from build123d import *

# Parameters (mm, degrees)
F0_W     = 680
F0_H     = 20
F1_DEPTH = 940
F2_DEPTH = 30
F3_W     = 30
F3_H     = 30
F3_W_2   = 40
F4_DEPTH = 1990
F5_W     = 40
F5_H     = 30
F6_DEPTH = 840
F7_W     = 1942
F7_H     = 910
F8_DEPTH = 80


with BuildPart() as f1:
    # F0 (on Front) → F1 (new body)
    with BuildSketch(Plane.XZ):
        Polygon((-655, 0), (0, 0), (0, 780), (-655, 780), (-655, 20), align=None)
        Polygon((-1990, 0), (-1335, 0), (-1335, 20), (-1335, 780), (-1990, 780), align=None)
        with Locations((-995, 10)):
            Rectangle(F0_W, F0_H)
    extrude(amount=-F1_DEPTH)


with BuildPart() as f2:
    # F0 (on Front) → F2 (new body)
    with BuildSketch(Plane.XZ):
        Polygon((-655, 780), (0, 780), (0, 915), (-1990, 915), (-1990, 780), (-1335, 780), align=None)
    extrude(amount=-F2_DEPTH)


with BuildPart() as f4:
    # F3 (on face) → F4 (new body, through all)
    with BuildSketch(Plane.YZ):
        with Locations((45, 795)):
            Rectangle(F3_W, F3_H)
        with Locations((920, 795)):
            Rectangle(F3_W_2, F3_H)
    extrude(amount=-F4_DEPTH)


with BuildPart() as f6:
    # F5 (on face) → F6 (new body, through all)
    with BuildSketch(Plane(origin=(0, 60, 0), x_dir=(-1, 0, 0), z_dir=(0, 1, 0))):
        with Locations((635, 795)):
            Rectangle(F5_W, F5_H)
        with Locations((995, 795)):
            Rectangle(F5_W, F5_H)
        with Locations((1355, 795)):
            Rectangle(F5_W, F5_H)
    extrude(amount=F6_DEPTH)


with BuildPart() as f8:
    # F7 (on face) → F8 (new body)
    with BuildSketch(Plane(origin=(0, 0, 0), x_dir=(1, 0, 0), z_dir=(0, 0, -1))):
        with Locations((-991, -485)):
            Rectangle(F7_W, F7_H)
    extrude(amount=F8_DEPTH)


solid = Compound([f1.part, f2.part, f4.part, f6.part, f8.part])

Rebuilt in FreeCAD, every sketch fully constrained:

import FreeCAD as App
import Part
import Sketcher
Q = App.Units.Quantity


def add_polygon(sketch, points):
    """Adds a closed chain of lines whose ends are joined by coincident constraints."""
    first, n = sketch.GeometryCount, len(points)
    for a, b in zip(points, points[1:] + points[:1]):
        sketch.addGeometry(Part.LineSegment(App.Vector(*a, 0), App.Vector(*b, 0)), False)
    for i in range(n):
        sketch.addConstraint(Sketcher.Constraint("Coincident", first + i, 2, first + (i + 1) % n, 1))

doc = App.newDocument("Part")
body = doc.addObject("PartDesign::Body", "Body")

sketch1 = body.newObject("Sketcher::SketchObject", "Sketch")
sketch1.AttachmentSupport = (doc.getObject("XZ_Plane"), [""])
sketch1.MapMode = "FlatFace"
add_polygon(sketch1, [(0, 0), (0, 780), (-655, 780), (-655, 20), (-1335, 20), (-1335, 780), (-1990, 780), (-1990, 0)])
sketch1.addConstraint(Sketcher.Constraint("Vertical", 0))
sketch1.addConstraint(Sketcher.Constraint("Horizontal", 1))
sketch1.addConstraint(Sketcher.Constraint("Vertical", 2))
sketch1.addConstraint(Sketcher.Constraint("Horizontal", 3))
sketch1.addConstraint(Sketcher.Constraint("Vertical", 4))
sketch1.addConstraint(Sketcher.Constraint("Horizontal", 5))
sketch1.addConstraint(Sketcher.Constraint("Vertical", 6))
sketch1.addConstraint(Sketcher.Constraint("Horizontal", 7))
sketch1.addConstraint(Sketcher.Constraint("Coincident", 7, 2, -1, 1))
sketch1.addConstraint(Sketcher.Constraint("Horizontal", 1, 2, 4, 2))
sketch1.addConstraint(Sketcher.Constraint("Equal", 1, 5))
sketch1.addConstraint(Sketcher.Constraint("DistanceX", 1, 2, 1, 1, Q("655 mm")))
sketch1.addConstraint(Sketcher.Constraint("DistanceX", 3, 2, 3, 1, Q("680 mm")))
sketch1.addConstraint(Sketcher.Constraint("DistanceY", 0, 1, 0, 2, Q("780 mm")))
sketch1.addConstraint(Sketcher.Constraint("DistanceY", 2, 2, 2, 1, Q("760 mm")))
pad1 = body.newObject("PartDesign::Pad", "Pad")
pad1.Profile = sketch1
pad1.Length = 940
pad1.Reversed = True
body2 = doc.addObject("PartDesign::Body", "Body001")

sketch2 = body2.newObject("Sketcher::SketchObject", "Sketch001")
sketch2.AttachmentSupport = (doc.getObject("XZ_Plane001"), [""])
sketch2.MapMode = "FlatFace"
add_polygon(sketch2, [(0, 780), (0, 915), (-1990, 915), (-1990, 780)])
sketch2.addConstraint(Sketcher.Constraint("Vertical", 0))
sketch2.addConstraint(Sketcher.Constraint("Horizontal", 1))
sketch2.addConstraint(Sketcher.Constraint("Vertical", 2))
sketch2.addConstraint(Sketcher.Constraint("Horizontal", 3))
sketch2.addConstraint(Sketcher.Constraint("PointOnObject", 0, 2, -2))
sketch2.addConstraint(Sketcher.Constraint("DistanceX", 1, 2, 1, 1, Q("1990 mm")))
sketch2.addConstraint(Sketcher.Constraint("DistanceY", 0, 1, 0, 2, Q("135 mm")))
sketch2.addConstraint(Sketcher.Constraint("DistanceY", -1, 1, 0, 2, Q("915 mm")))
pad2 = body2.newObject("PartDesign::Pad", "Pad001")
pad2.Profile = sketch2
pad2.Length = 30
pad2.Reversed = True
body3 = doc.addObject("PartDesign::Body", "Body002")
body3.AllowCompound = True

sketch3 = body3.newObject("Sketcher::SketchObject", "Sketch002")
sketch3.AttachmentSupport = (doc.getObject("YZ_Plane002"), [""])
sketch3.MapMode = "FlatFace"
add_polygon(sketch3, [(30, 810), (30, 780), (60, 780), (60, 810)])
add_polygon(sketch3, [(900, 810), (900, 780), (940, 780), (940, 810)])
sketch3.addConstraint(Sketcher.Constraint("Vertical", 0))
sketch3.addConstraint(Sketcher.Constraint("Horizontal", 1))
sketch3.addConstraint(Sketcher.Constraint("Vertical", 2))
sketch3.addConstraint(Sketcher.Constraint("Horizontal", 3))
sketch3.addConstraint(Sketcher.Constraint("Vertical", 4))
sketch3.addConstraint(Sketcher.Constraint("Horizontal", 5))
sketch3.addConstraint(Sketcher.Constraint("Vertical", 6))
sketch3.addConstraint(Sketcher.Constraint("Horizontal", 7))
sketch3.addConstraint(Sketcher.Constraint("Horizontal", 1, 2, 4, 2))
sketch3.addConstraint(Sketcher.Constraint("Horizontal", 3, 2, 6, 2))
sketch3.addConstraint(Sketcher.Constraint("Equal", 3, 0))
sketch3.addConstraint(Sketcher.Constraint("DistanceX", 1, 1, 1, 2, Q("30 mm")))
sketch3.addConstraint(Sketcher.Constraint("DistanceX", 5, 1, 5, 2, Q("40 mm")))
sketch3.addConstraint(Sketcher.Constraint("DistanceX", -1, 1, 0, 2, Q("30 mm")))
sketch3.addConstraint(Sketcher.Constraint("DistanceY", -1, 1, 0, 2, Q("780 mm")))
sketch3.addConstraint(Sketcher.Constraint("DistanceX", -1, 1, 4, 2, Q("900 mm")))
pad3 = body3.newObject("PartDesign::Pad", "Pad002")
pad3.Profile = sketch3
pad3.Length = 1990
pad3.Reversed = True
body4 = doc.addObject("PartDesign::Body", "Body003")
body4.AllowCompound = True

sketch4 = body4.newObject("Sketcher::SketchObject", "Sketch003")
sketch4.AttachmentSupport = (doc.getObject("XZ_Plane003"), [""])
sketch4.MapMode = "FlatFace"
sketch4.AttachmentOffset = App.Placement(App.Vector(0, 0, -60), App.Rotation())
add_polygon(sketch4, [(-615, 810), (-615, 780), (-655, 780), (-655, 810)])
add_polygon(sketch4, [(-975, 810), (-975, 780), (-1015, 780), (-1015, 810)])
add_polygon(sketch4, [(-1335, 810), (-1335, 780), (-1375, 780), (-1375, 810)])
sketch4.addConstraint(Sketcher.Constraint("Vertical", 0))
sketch4.addConstraint(Sketcher.Constraint("Horizontal", 1))
sketch4.addConstraint(Sketcher.Constraint("Vertical", 2))
sketch4.addConstraint(Sketcher.Constraint("Horizontal", 3))
sketch4.addConstraint(Sketcher.Constraint("Vertical", 4))
sketch4.addConstraint(Sketcher.Constraint("Horizontal", 5))
sketch4.addConstraint(Sketcher.Constraint("Vertical", 6))
sketch4.addConstraint(Sketcher.Constraint("Horizontal", 7))
sketch4.addConstraint(Sketcher.Constraint("Vertical", 8))
sketch4.addConstraint(Sketcher.Constraint("Horizontal", 9))
sketch4.addConstraint(Sketcher.Constraint("Vertical", 10))
sketch4.addConstraint(Sketcher.Constraint("Horizontal", 11))
sketch4.addConstraint(Sketcher.Constraint("Horizontal", 1, 2, 4, 2))
sketch4.addConstraint(Sketcher.Constraint("Horizontal", 3, 2, 6, 2))
sketch4.addConstraint(Sketcher.Constraint("Horizontal", 5, 2, 8, 2))
sketch4.addConstraint(Sketcher.Constraint("Horizontal", 7, 2, 10, 2))
sketch4.addConstraint(Sketcher.Constraint("Equal", 3, 5))
sketch4.addConstraint(Sketcher.Constraint("Equal", 7, 9))
sketch4.addConstraint(Sketcher.Constraint("DistanceX", 1, 2, 1, 1, Q("40 mm")))
sketch4.addConstraint(Sketcher.Constraint("DistanceY", 0, 2, 0, 1, Q("30 mm")))
sketch4.addConstraint(Sketcher.Constraint("DistanceX", 0, 2, -1, 1, Q("615 mm")))
sketch4.addConstraint(Sketcher.Constraint("DistanceY", -1, 1, 0, 2, Q("780 mm")))
sketch4.addConstraint(Sketcher.Constraint("DistanceX", 4, 2, -1, 1, Q("975 mm")))
sketch4.addConstraint(Sketcher.Constraint("DistanceX", 8, 2, -1, 1, Q("1335 mm")))
pad4 = body4.newObject("PartDesign::Pad", "Pad003")
pad4.Profile = sketch4
pad4.Length = 840
pad4.Reversed = True
body5 = doc.addObject("PartDesign::Body", "Body004")

sketch5 = body5.newObject("Sketcher::SketchObject", "Sketch004")
sketch5.AttachmentSupport = (doc.getObject("XY_Plane004"), [""])
sketch5.MapMode = "FlatFace"
add_polygon(sketch5, [(-1962, 30), (-1962, 940), (-20, 940), (-20, 30)])
sketch5.addConstraint(Sketcher.Constraint("Vertical", 0))
sketch5.addConstraint(Sketcher.Constraint("Horizontal", 1))
sketch5.addConstraint(Sketcher.Constraint("Vertical", 2))
sketch5.addConstraint(Sketcher.Constraint("Horizontal", 3))
sketch5.addConstraint(Sketcher.Constraint("DistanceX", 1, 1, 1, 2, Q("1942 mm")))
sketch5.addConstraint(Sketcher.Constraint("DistanceY", 0, 1, 0, 2, Q("910 mm")))
sketch5.addConstraint(Sketcher.Constraint("DistanceX", 0, 2, -1, 1, Q("1962 mm")))
sketch5.addConstraint(Sketcher.Constraint("DistanceY", -1, 1, 0, 2, Q("940 mm")))
pad5 = body5.newObject("PartDesign::Pad", "Pad004")
pad5.Profile = sketch5
pad5.Length = 80
pad5.Reversed = True

doc.recompute()
